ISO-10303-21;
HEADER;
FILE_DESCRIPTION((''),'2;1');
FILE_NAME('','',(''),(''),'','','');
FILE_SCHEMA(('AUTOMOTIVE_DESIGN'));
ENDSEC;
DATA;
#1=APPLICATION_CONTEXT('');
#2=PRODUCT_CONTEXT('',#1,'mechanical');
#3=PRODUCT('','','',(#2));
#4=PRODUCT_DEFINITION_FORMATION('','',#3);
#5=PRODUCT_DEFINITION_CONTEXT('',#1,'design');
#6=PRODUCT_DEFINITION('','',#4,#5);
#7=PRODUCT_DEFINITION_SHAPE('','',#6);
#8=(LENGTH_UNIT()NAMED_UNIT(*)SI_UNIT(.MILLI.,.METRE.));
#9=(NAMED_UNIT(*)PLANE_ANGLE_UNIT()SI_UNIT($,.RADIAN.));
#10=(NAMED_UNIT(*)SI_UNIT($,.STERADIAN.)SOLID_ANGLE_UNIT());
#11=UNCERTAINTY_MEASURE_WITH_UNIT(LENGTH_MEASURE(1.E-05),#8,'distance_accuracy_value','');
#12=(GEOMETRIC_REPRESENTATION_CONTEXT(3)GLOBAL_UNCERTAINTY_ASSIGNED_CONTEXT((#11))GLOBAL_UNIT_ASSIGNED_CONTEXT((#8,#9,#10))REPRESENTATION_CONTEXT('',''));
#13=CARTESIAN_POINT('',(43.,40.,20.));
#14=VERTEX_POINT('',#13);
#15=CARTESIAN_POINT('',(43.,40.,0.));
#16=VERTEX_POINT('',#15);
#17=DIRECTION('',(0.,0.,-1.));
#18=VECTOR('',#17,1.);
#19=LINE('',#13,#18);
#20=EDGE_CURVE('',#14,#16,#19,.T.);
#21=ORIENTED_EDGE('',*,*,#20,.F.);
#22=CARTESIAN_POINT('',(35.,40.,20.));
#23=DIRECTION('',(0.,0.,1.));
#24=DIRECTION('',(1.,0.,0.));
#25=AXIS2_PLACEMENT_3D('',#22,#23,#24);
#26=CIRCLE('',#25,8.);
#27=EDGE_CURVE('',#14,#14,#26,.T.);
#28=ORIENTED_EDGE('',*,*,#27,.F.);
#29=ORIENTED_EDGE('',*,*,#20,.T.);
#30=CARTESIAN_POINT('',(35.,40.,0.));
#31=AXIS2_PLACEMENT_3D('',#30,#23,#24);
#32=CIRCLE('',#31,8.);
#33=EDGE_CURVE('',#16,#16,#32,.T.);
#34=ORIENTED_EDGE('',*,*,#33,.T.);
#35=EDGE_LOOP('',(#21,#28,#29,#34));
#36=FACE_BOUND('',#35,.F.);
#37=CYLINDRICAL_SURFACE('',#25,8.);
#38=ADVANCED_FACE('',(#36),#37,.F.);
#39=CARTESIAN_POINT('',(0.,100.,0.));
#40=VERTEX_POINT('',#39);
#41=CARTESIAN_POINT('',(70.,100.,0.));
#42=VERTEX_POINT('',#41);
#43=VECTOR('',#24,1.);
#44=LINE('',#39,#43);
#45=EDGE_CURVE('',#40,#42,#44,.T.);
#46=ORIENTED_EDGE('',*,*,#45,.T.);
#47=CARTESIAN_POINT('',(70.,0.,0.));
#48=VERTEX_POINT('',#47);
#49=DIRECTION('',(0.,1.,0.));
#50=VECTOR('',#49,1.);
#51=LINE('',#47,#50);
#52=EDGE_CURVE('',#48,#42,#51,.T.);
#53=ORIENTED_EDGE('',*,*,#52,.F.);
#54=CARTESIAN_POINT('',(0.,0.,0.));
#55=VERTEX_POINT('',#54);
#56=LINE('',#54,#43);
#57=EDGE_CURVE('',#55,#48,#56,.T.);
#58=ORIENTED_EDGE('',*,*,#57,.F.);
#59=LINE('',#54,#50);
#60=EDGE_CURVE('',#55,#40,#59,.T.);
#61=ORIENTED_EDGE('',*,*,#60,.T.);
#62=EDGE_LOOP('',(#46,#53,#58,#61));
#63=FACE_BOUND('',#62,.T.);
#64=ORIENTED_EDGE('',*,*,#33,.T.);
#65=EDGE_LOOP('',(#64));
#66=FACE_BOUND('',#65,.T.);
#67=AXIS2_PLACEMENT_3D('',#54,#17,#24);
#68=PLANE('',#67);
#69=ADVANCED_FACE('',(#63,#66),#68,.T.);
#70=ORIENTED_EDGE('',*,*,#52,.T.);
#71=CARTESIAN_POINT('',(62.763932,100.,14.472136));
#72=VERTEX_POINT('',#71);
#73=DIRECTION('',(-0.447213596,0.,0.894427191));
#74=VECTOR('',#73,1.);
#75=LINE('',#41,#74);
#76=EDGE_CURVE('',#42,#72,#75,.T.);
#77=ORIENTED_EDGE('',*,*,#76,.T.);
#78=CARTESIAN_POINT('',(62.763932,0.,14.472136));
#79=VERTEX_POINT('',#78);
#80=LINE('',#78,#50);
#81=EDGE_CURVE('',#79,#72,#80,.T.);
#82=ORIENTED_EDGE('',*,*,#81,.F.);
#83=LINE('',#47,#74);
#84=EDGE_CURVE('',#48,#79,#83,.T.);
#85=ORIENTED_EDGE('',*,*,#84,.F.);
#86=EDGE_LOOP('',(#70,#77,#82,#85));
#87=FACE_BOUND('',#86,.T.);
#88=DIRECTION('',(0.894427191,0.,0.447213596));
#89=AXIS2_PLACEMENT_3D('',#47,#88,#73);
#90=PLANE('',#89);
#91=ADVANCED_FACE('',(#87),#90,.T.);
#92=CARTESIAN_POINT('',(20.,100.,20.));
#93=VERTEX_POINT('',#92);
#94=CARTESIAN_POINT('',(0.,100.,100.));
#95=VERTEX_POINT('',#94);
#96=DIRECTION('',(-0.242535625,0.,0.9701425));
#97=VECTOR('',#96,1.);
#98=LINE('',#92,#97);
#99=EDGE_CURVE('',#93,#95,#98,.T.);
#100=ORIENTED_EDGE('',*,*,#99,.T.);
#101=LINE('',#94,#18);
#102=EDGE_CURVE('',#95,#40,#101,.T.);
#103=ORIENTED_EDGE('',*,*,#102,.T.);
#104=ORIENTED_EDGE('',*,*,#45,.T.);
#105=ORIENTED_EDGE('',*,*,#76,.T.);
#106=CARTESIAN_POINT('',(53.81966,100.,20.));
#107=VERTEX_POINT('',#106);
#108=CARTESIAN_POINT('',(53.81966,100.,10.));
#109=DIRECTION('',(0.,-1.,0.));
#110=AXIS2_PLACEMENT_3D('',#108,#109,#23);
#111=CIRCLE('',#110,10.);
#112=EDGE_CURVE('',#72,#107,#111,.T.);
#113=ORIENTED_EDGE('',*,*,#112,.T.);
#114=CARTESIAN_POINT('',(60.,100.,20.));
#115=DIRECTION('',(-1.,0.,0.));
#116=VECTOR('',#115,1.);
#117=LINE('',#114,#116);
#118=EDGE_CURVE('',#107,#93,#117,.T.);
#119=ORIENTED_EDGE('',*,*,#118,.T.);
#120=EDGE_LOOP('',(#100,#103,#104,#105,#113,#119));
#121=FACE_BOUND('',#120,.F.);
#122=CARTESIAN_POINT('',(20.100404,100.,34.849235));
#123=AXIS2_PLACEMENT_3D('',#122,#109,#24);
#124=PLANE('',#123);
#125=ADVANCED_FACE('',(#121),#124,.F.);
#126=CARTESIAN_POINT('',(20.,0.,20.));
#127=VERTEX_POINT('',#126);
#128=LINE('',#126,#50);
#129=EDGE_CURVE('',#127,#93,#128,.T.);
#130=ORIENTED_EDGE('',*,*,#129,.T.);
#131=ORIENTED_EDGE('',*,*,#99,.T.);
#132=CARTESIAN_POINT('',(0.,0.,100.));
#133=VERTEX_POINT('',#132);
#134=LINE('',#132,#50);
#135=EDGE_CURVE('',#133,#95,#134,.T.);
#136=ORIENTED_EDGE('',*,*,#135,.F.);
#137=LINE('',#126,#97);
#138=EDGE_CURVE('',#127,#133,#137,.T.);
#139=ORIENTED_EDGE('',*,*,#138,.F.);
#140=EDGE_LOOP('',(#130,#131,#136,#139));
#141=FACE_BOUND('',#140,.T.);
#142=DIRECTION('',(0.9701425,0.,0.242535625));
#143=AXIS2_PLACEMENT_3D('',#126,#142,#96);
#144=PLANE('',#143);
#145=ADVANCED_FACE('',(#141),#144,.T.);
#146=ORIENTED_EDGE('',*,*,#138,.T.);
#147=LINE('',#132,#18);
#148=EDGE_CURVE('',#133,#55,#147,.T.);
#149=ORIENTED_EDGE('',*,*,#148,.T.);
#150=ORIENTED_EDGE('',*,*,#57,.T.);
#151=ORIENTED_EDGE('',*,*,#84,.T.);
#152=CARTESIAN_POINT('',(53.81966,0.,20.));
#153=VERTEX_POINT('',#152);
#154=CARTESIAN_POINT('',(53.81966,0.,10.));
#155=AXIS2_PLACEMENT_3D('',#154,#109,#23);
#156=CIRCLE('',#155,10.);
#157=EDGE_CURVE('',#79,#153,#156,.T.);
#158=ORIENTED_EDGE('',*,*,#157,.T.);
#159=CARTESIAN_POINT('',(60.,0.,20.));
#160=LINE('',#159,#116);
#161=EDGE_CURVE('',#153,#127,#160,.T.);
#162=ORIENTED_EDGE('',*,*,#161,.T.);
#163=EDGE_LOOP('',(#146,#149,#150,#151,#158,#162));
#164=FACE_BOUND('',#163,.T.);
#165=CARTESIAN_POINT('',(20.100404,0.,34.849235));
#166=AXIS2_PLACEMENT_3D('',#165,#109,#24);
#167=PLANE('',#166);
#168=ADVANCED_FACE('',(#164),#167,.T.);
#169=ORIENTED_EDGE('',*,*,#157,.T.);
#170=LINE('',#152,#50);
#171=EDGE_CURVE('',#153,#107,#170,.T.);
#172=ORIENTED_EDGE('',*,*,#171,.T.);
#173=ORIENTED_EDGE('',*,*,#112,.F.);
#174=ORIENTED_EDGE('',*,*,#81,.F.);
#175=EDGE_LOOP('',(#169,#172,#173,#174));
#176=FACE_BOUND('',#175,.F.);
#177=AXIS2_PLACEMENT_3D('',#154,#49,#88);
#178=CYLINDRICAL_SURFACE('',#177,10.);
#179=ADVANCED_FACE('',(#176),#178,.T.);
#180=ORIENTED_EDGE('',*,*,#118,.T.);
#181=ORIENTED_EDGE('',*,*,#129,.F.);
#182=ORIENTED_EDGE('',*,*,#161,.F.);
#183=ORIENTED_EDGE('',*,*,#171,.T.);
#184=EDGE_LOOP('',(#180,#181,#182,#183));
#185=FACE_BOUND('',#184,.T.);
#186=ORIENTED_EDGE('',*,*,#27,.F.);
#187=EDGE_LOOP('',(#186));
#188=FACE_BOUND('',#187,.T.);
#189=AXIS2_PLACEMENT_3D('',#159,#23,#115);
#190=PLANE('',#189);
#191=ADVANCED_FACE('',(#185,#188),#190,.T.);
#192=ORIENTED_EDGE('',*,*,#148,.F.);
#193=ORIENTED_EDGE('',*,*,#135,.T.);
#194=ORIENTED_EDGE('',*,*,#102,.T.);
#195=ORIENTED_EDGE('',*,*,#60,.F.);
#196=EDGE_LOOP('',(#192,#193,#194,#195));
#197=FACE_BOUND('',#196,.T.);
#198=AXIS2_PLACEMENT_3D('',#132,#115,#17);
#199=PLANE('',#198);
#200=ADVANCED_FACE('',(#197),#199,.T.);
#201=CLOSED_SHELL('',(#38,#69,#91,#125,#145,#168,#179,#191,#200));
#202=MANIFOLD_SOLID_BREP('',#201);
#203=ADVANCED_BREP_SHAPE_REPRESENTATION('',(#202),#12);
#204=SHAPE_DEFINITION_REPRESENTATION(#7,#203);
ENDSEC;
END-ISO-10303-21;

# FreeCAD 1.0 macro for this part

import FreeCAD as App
import Part
import Sketcher
from FreeCAD import Vector
Q = App.Units.Quantity


def edges_at(feature, points):
    """Names of the edges that pass closest to the given points."""
    edges = feature.Shape.Edges
    near = lambda p: min(range(len(edges)), key=lambda i: edges[i].distToShape(Part.Vertex(*p))[0])
    return sorted({f"Edge{near(p) + 1}" for p in points})

doc = App.newDocument("Part")
body = doc.addObject("PartDesign::Body", "Body")

# Sketch on XZ plane
sketch1 = body.newObject("Sketcher::SketchObject", "Sketch")
sketch1.AttachmentSupport = (doc.getObject("XZ_Plane"), [""])
sketch1.MapMode = "FlatFace"
sketch1.addGeometry(Part.LineSegment(Vector(0, 100, 0), Vector(0, 0, 0)), False)
sketch1.addGeometry(Part.LineSegment(Vector(0, 0, 0), Vector(70, 0, 0)), False)
sketch1.addGeometry(Part.LineSegment(Vector(70, 0, 0), Vector(60, 20, 0)), False)
sketch1.addGeometry(Part.LineSegment(Vector(60, 20, 0), Vector(20, 20, 0)), False)
sketch1.addGeometry(Part.LineSegment(Vector(20, 20, 0), Vector(0, 100, 0)), False)
sketch1.addConstraint(Sketcher.Constraint("Coincident", 0, 2, 1, 1))
sketch1.addConstraint(Sketcher.Constraint("Coincident", 1, 2, 2, 1))
sketch1.addConstraint(Sketcher.Constraint("Coincident", 2, 2, 3, 1))
sketch1.addConstraint(Sketcher.Constraint("Coincident", 3, 2, 4, 1))
sketch1.addConstraint(Sketcher.Constraint("Coincident", 4, 2, 0, 1))
sketch1.addConstraint(Sketcher.Constraint("Vertical", 0))
sketch1.addConstraint(Sketcher.Constraint("Horizontal", 1))
sketch1.addConstraint(Sketcher.Constraint("Horizontal", 3))
sketch1.addConstraint(Sketcher.Constraint("Coincident", 0, 2, -1, 1))
sketch1.addConstraint(Sketcher.Constraint("DistanceX", 1, 1, 1, 2, Q("70 mm")))
sketch1.addConstraint(Sketcher.Constraint("DistanceX", 3, 2, 3, 1, Q("40 mm")))
sketch1.addConstraint(Sketcher.Constraint("DistanceY", 0, 2, 0, 1, Q("100 mm")))
sketch1.addConstraint(Sketcher.Constraint("DistanceX", -1, 1, 2, 2, Q("60 mm")))
sketch1.addConstraint(Sketcher.Constraint("DistanceY", -1, 1, 2, 2, Q("20 mm")))
pad1 = body.newObject("PartDesign::Pad", "Pad")
pad1.Profile = sketch1
pad1.Length = 100
pad1.Reversed = True
doc.recompute()

fillet = body.newObject("PartDesign::Fillet", "Fillet")
fillet.Base = (pad1, edges_at(pad1, [(60, 50, 20)]))
fillet.Radius = 10

# Sketch on XY plane
sketch2 = body.newObject("Sketcher::SketchObject", "Sketch001")
sketch2.AttachmentSupport = (doc.getObject("XY_Plane"), [""])
sketch2.MapMode = "FlatFace"
sketch2.AttachmentOffset = App.Placement(Vector(0, 0, 20), App.Rotation())
sketch2.addGeometry(Part.Circle(Vector(35, 40, 0), Vector(0, 0, 1), 8), False)
sketch2.addConstraint(Sketcher.Constraint("Diameter", 0, Q("16 mm")))
sketch2.addConstraint(Sketcher.Constraint("DistanceX", -1, 1, 0, 3, Q("35 mm")))
sketch2.addConstraint(Sketcher.Constraint("DistanceY", -1, 1, 0, 3, Q("40 mm")))
pocket1 = body.newObject("PartDesign::Pocket", "Pocket")
pocket1.Profile = sketch2
pocket1.Type = "ThroughAll"

doc.recompute()
